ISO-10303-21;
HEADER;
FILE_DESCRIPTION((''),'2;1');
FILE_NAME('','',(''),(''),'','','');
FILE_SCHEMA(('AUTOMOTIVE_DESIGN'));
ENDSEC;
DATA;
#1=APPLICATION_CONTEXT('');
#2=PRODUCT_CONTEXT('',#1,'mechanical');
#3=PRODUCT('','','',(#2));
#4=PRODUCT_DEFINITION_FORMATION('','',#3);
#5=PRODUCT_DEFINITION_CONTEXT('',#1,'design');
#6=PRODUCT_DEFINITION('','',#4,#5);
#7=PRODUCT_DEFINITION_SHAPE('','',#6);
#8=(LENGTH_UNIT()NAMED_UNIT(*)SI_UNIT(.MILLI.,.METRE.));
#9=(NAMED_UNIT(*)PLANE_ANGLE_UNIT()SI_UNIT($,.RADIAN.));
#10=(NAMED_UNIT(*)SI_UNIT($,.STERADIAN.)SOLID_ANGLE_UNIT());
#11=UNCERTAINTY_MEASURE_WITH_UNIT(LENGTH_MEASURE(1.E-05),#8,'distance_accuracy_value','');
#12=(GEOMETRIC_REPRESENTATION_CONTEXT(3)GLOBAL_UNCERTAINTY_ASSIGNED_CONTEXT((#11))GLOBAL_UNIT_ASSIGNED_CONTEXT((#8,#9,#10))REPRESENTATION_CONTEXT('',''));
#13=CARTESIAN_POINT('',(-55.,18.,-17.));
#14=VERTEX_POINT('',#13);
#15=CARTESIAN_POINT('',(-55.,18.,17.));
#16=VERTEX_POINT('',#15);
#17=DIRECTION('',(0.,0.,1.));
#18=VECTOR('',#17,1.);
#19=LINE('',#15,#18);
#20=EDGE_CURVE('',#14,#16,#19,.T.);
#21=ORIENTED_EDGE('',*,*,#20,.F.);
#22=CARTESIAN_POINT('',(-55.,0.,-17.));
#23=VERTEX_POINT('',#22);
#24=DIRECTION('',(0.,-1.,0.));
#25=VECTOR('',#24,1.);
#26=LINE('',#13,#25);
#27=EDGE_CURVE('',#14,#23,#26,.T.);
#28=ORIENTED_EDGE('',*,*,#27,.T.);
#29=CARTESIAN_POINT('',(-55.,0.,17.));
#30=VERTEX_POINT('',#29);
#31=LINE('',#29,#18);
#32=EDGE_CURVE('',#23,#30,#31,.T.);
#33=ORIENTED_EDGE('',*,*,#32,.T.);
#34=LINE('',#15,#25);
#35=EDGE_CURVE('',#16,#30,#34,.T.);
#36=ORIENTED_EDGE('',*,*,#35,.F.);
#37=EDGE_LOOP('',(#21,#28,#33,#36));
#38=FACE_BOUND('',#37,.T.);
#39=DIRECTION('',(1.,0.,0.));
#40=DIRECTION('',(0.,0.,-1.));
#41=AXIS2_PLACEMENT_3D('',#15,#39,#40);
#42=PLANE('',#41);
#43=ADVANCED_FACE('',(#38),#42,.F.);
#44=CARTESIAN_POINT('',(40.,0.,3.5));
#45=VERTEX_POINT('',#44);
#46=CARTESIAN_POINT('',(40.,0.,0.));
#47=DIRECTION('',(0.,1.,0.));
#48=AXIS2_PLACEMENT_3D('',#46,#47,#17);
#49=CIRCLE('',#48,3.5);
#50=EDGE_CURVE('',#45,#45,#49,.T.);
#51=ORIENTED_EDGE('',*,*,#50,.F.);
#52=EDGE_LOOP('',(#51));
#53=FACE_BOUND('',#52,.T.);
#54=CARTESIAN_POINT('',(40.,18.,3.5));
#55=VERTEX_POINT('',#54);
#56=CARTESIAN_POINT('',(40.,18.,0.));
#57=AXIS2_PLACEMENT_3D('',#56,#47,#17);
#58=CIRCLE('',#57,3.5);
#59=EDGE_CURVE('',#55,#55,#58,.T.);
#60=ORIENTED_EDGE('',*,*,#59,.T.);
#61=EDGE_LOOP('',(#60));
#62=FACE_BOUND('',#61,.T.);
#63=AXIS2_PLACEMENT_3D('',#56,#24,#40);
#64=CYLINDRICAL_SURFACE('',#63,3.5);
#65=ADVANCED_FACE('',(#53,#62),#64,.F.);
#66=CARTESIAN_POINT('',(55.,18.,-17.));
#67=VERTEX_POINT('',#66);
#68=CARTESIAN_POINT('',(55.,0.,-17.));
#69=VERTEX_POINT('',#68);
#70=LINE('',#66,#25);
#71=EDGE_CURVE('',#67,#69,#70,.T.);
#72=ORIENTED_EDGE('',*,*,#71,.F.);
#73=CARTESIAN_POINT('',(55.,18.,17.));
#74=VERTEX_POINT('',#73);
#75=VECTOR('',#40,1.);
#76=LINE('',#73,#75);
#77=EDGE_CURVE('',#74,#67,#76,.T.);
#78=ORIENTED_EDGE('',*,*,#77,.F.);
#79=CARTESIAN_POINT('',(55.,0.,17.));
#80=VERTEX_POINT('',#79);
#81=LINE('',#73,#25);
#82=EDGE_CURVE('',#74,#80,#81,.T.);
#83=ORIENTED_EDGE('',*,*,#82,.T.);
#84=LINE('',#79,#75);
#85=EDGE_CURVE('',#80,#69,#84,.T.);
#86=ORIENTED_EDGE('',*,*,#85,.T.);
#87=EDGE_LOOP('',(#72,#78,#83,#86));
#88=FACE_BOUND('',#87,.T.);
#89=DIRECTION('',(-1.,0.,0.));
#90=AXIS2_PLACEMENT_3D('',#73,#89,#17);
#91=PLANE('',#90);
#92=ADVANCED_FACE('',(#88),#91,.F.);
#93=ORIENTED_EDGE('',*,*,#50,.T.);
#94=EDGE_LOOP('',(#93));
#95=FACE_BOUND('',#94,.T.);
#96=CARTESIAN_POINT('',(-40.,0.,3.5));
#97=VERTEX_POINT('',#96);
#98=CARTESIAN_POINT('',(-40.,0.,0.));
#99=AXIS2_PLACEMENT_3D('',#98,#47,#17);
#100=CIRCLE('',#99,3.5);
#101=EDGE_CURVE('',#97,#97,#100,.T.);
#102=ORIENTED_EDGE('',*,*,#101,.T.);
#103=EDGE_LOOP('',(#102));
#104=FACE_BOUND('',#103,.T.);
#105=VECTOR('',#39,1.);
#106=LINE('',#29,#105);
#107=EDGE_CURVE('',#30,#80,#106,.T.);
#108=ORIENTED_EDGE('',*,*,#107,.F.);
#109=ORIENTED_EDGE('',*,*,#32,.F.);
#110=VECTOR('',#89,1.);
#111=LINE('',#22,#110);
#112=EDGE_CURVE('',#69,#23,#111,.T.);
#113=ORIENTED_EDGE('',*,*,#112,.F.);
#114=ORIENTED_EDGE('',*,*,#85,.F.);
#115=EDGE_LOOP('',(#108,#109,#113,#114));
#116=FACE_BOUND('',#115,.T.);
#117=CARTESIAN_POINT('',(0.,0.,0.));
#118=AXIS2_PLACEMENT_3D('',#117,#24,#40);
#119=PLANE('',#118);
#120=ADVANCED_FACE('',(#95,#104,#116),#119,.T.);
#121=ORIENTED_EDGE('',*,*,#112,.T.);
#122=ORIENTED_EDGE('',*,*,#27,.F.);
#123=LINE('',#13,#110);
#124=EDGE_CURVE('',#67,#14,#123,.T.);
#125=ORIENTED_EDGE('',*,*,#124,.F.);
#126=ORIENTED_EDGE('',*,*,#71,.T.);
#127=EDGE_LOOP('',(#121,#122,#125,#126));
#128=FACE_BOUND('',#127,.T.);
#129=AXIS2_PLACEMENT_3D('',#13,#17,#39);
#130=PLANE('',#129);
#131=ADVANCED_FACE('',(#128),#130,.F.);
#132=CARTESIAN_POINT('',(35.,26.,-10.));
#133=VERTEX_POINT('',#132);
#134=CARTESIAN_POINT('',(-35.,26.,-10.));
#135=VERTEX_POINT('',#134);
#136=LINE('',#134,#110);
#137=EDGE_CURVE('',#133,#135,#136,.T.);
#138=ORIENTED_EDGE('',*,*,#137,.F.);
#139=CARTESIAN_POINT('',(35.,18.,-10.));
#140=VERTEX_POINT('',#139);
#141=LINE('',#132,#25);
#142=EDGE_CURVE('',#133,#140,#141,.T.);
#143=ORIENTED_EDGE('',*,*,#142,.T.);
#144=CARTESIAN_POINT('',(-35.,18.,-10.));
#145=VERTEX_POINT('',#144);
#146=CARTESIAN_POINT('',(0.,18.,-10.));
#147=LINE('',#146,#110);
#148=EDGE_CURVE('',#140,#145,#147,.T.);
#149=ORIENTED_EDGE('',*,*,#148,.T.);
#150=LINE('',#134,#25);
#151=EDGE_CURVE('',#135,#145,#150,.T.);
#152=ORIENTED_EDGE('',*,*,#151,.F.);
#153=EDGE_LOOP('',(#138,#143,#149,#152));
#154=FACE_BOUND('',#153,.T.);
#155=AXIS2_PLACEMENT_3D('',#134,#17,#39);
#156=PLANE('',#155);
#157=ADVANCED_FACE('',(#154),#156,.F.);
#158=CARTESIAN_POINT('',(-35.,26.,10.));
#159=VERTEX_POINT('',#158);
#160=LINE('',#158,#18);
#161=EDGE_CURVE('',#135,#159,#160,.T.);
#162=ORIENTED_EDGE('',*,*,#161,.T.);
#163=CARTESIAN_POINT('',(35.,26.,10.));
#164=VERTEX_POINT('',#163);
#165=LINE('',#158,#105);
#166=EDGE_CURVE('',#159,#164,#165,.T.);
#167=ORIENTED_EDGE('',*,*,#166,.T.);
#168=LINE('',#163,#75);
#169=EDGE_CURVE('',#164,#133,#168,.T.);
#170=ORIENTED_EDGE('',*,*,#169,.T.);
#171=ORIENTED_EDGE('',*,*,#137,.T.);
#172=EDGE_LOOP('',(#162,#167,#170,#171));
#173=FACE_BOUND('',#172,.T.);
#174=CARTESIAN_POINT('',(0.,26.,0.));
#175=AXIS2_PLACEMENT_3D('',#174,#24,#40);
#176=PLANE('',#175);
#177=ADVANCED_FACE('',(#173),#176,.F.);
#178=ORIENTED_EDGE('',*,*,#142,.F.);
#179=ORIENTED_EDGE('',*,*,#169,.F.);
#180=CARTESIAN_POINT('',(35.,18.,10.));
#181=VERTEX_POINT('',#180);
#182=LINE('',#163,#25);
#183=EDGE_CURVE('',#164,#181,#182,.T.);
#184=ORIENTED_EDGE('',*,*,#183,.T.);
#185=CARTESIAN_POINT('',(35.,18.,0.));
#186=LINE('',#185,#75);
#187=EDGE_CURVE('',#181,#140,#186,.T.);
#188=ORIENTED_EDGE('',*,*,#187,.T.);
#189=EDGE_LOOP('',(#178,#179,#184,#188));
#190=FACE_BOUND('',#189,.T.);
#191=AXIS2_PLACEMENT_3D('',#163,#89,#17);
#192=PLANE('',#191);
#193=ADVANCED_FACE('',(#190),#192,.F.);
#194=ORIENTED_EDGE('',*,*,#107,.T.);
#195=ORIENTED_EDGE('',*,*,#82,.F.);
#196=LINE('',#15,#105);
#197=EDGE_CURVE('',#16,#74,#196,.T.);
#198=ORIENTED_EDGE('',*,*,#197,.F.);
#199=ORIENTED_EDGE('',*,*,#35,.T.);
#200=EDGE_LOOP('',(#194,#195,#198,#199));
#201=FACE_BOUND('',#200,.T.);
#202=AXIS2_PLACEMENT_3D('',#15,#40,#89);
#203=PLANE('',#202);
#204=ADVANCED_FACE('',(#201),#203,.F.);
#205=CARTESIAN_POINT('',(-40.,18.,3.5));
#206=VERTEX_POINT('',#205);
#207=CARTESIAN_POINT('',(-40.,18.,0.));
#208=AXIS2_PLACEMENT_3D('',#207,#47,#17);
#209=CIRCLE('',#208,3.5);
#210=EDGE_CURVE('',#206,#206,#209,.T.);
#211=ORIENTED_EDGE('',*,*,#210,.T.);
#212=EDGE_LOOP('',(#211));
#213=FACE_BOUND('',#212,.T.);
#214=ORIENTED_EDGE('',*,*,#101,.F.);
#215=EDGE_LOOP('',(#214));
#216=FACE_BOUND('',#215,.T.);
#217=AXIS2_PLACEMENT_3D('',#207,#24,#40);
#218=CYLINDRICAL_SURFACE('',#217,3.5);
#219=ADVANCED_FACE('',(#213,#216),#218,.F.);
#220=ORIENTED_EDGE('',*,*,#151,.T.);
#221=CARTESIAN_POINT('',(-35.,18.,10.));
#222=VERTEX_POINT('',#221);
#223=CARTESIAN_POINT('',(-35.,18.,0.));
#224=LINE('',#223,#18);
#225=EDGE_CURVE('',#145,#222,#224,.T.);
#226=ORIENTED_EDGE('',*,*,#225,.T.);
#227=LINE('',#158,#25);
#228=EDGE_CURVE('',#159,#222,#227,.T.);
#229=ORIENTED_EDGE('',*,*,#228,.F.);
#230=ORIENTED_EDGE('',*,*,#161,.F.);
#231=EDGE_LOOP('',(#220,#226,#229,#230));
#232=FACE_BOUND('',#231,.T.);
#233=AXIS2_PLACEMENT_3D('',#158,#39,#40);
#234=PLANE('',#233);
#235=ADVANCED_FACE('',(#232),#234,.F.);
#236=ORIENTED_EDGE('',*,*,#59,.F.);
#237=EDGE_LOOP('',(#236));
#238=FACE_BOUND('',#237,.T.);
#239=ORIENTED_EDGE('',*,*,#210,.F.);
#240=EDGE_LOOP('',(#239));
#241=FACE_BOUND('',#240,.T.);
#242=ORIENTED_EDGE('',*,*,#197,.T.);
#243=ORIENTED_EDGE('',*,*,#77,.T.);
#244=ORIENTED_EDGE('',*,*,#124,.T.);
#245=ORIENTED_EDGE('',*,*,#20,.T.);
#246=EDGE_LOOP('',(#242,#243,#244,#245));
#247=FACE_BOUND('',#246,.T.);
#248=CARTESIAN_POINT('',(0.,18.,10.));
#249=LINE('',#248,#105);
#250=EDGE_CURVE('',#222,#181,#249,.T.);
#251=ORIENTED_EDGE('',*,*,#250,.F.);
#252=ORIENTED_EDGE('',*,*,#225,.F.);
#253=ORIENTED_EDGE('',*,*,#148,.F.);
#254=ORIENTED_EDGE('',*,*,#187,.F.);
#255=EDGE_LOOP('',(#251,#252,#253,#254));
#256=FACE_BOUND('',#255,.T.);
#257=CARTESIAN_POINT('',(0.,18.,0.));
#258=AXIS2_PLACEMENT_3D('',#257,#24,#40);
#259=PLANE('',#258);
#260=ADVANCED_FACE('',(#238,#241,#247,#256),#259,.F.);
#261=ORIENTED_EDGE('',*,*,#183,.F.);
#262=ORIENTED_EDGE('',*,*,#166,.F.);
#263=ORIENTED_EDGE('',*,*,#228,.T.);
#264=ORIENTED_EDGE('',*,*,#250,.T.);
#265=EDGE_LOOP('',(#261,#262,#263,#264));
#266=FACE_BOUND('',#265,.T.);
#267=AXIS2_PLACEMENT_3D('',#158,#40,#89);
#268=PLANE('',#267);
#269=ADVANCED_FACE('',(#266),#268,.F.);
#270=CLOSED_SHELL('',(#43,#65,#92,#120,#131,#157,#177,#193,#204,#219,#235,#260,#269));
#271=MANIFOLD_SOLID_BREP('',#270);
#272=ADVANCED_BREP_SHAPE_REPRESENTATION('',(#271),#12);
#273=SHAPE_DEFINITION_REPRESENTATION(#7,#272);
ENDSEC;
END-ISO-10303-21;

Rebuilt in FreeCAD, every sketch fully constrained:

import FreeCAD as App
import Part
import Sketcher

V = App.Vector
Q = App.Units.Quantity

doc = App.newDocument("Part")
params = doc.addObject("Spreadsheet::Sheet", "Params")
for row, (alias, value) in enumerate([
    ("sketch1_diameter", "7 mm"),
    ("sketch1_width", "110 mm"),
    ("sketch1_height", "34 mm"),
    ("pad1_length", "18 mm"),
    ("sketch2_width", "70 mm"),
    ("sketch2_height", "20 mm"),
    ("pad2_length", "26 mm"),
], start=1):
    params.set(f"A{row}", alias)
    params.set(f"B{row}", "=" + value)
    params.setAlias(f"B{row}", alias)

body = doc.addObject("PartDesign::Body", "Body")

sketch1 = doc.addObject("Sketcher::SketchObject", "Sketch")
body.addObject(sketch1)
sketch1.AttachmentSupport = (doc.XZ_Plane, [""])
sketch1.MapMode = "FlatFace"
sketch1.addGeometry(Part.LineSegment(V(-55, -17, 0), V(-55, 17, 0)), False)
sketch1.addGeometry(Part.LineSegment(V(-55, 17, 0), V(55, 17, 0)), False)
sketch1.addGeometry(Part.LineSegment(V(55, 17, 0), V(55, -17, 0)), False)
sketch1.addGeometry(Part.LineSegment(V(55, -17, 0), V(-55, -17, 0)), False)
sketch1.addGeometry(Part.Circle(V(-40, 0, 0), V(0, 0, 1), 3.5), False)
sketch1.addGeometry(Part.Circle(V(40, 0, 0), V(0, 0, 1), 3.5), False)
sketch1.addConstraint(Sketcher.Constraint("Coincident", 0, 2, 1, 1))
sketch1.addConstraint(Sketcher.Constraint("Coincident", 1, 2, 2, 1))
sketch1.addConstraint(Sketcher.Constraint("Coincident", 2, 2, 3, 1))
sketch1.addConstraint(Sketcher.Constraint("Coincident", 3, 2, 0, 1))
sketch1.addConstraint(Sketcher.Constraint("Vertical", 0))
sketch1.addConstraint(Sketcher.Constraint("Horizontal", 1))
sketch1.addConstraint(Sketcher.Constraint("Vertical", 2))
sketch1.addConstraint(Sketcher.Constraint("Horizontal", 3))
sketch1.addConstraint(Sketcher.Constraint("Equal", 4, 5))
sketch1.addConstraint(Sketcher.Constraint("Symmetric", 4, 3, 5, 3, -1, 1))
sketch1.addConstraint(Sketcher.Constraint("Symmetric", 0, 2, 2, 2, -1, 1))
sketch1.addConstraint(Sketcher.Constraint("PointOnObject", 4, 3, -1))
sketch1.addConstraint(Sketcher.Constraint("Diameter", 4, Q("7 mm")))
sketch1.addConstraint(Sketcher.Constraint("DistanceX", 1, 1, 1, 2, Q("110 mm")))
sketch1.addConstraint(Sketcher.Constraint("DistanceY", 0, 1, 0, 2, Q("34 mm")))
sketch1.addConstraint(Sketcher.Constraint("DistanceX", 4, 3, -1, 1, Q("40 mm")))
sketch1.setExpression("Constraints[12]", "Params.sketch1_diameter")
sketch1.setExpression("Constraints[13]", "Params.sketch1_width")
sketch1.setExpression("Constraints[14]", "Params.sketch1_height")
pad1 = doc.addObject("PartDesign::Pad", "Pad")
body.addObject(pad1)
pad1.Profile = sketch1
pad1.setExpression("Length", "Params.pad1_length")
pad1.Reversed = True

sketch2 = doc.addObject("Sketcher::SketchObject", "Sketch001")
body.addObject(sketch2)
sketch2.AttachmentSupport = (doc.XZ_Plane, [""])
sketch2.MapMode = "FlatFace"
sketch2.addGeometry(Part.LineSegment(V(-35, -10, 0), V(-35, 10, 0)), False)
sketch2.addGeometry(Part.LineSegment(V(-35, 10, 0), V(35, 10, 0)), False)
sketch2.addGeometry(Part.LineSegment(V(35, 10, 0), V(35, -10, 0)), False)
sketch2.addGeometry(Part.LineSegment(V(35, -10, 0), V(-35, -10, 0)), False)
sketch2.addConstraint(Sketcher.Constraint("Coincident", 0, 2, 1, 1))
sketch2.addConstraint(Sketcher.Constraint("Coincident", 1, 2, 2, 1))
sketch2.addConstraint(Sketcher.Constraint("Coincident", 2, 2, 3, 1))
sketch2.addConstraint(Sketcher.Constraint("Coincident", 3, 2, 0, 1))
sketch2.addConstraint(Sketcher.Constraint("Vertical", 0))
sketch2.addConstraint(Sketcher.Constraint("Horizontal", 1))
sketch2.addConstraint(Sketcher.Constraint("Vertical", 2))
sketch2.addConstraint(Sketcher.Constraint("Horizontal", 3))
sketch2.addConstraint(Sketcher.Constraint("Symmetric", 0, 2, 2, 2, -1, 1))
sketch2.addConstraint(Sketcher.Constraint("DistanceX", 1, 1, 1, 2, Q("70 mm")))
sketch2.addConstraint(Sketcher.Constraint("DistanceY", 0, 1, 0, 2, Q("20 mm")))
sketch2.setExpression("Constraints[9]", "Params.sketch2_width")
sketch2.setExpression("Constraints[10]", "Params.sketch2_height")
pad2 = doc.addObject("PartDesign::Pad", "Pad001")
body.addObject(pad2)
pad2.Profile = sketch2
pad2.setExpression("Length", "Params.pad2_length")
pad2.Reversed = True

doc.recompute()
